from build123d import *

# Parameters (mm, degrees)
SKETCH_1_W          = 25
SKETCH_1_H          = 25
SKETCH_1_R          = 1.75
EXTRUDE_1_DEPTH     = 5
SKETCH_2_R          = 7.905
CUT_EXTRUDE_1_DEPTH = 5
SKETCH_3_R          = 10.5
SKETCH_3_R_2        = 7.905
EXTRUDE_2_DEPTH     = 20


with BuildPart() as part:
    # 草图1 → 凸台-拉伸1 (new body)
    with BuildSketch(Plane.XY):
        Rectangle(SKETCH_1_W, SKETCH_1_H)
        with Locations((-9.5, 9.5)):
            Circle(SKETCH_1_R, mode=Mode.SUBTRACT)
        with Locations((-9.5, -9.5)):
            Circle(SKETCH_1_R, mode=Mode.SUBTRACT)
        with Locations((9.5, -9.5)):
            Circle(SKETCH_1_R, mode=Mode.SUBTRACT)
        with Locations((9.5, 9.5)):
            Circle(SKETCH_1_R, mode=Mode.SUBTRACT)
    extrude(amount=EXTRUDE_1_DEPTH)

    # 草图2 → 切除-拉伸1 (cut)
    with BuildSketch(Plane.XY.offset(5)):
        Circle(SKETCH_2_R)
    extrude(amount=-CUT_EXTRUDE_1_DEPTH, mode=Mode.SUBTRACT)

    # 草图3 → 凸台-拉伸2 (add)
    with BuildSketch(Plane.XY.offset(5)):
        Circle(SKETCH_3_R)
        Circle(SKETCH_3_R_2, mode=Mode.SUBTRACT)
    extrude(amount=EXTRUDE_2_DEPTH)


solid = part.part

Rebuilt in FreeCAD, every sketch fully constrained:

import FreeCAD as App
import Part
import Sketcher
Q = App.Units.Quantity


def add_polygon(sketch, points):
    """Adds a closed chain of lines whose ends are joined by coincident constraints."""
    first, n = sketch.GeometryCount, len(points)
    for a, b in zip(points, points[1:] + points[:1]):
        sketch.addGeometry(Part.LineSegment(App.Vector(*a, 0), App.Vector(*b, 0)), False)
    for i in range(n):
        sketch.addConstraint(Sketcher.Constraint("Coincident", first + i, 2, first + (i + 1) % n, 1))

doc = App.newDocument("Part")
body = doc.addObject("PartDesign::Body", "Body")

sketch1 = body.newObject("Sketcher::SketchObject", "Sketch")
sketch1.AttachmentSupport = (doc.getObject("XY_Plane"), [""])
sketch1.MapMode = "FlatFace"
add_polygon(sketch1, [(-12.5, 12.5), (-12.5, -12.5), (12.5, -12.5), (12.5, 12.5)])
sketch1.addGeometry(Part.Circle(App.Vector(-9.5, -9.5, 0), App.Vector(0, 0, 1), 1.8), False)
sketch1.addGeometry(Part.Circle(App.Vector(9.5, -9.5, 0), App.Vector(0, 0, 1), 1.8), False)
sketch1.addGeometry(Part.Circle(App.Vector(-9.5, 9.5, 0), App.Vector(0, 0, 1), 1.8), False)
sketch1.addGeometry(Part.Circle(App.Vector(9.5, 9.5, 0), App.Vector(0, 0, 1), 1.8), False)
sketch1.addConstraint(Sketcher.Constraint("Vertical", 0))
sketch1.addConstraint(Sketcher.Constraint("Horizontal", 1))
sketch1.addConstraint(Sketcher.Constraint("Vertical", 2))
sketch1.addConstraint(Sketcher.Constraint("Horizontal", 3))
sketch1.addConstraint(Sketcher.Constraint("Equal", 4, 5))
sketch1.addConstraint(Sketcher.Constraint("Equal", 5, 6))
sketch1.addConstraint(Sketcher.Constraint("Equal", 6, 7))
sketch1.addConstraint(Sketcher.Constraint("Symmetric", 5, 3, 6, 3, -1, 1))
sketch1.addConstraint(Sketcher.Constraint("Symmetric", 4, 3, 7, 3, -1, 1))
sketch1.addConstraint(Sketcher.Constraint("Symmetric", 0, 2, 2, 2, -1, 1))
sketch1.addConstraint(Sketcher.Constraint("Symmetric", 4, 3, 5, 3, -2))
sketch1.addConstraint(Sketcher.Constraint("Equal", 3, 0))
sketch1.addConstraint(Sketcher.Constraint("Diameter", 4, Q("3.5 mm")))
sketch1.addConstraint(Sketcher.Constraint("DistanceX", 1, 1, 1, 2, Q("25 mm")))
sketch1.addConstraint(Sketcher.Constraint("DistanceX", 4, 3, 5, 3, Q("19 mm")))
sketch1.addConstraint(Sketcher.Constraint("DistanceY", 4, 3, 6, 3, Q("19 mm")))
pad1 = body.newObject("PartDesign::Pad", "Pad")
pad1.Profile = sketch1
pad1.Length = 5

sketch2 = body.newObject("Sketcher::SketchObject", "Sketch001")
sketch2.AttachmentSupport = (doc.getObject("XY_Plane"), [""])
sketch2.MapMode = "FlatFace"
sketch2.AttachmentOffset = App.Placement(App.Vector(0, 0, 5), App.Rotation())
sketch2.addGeometry(Part.Circle(App.Vector(0, 0, 0), App.Vector(0, 0, 1), 8), False)
sketch2.addConstraint(Sketcher.Constraint("Coincident", 0, 3, -1, 1))
sketch2.addConstraint(Sketcher.Constraint("Diameter", 0, Q("15.81 mm")))
pocket1 = body.newObject("PartDesign::Pocket", "Pocket")
pocket1.Profile = sketch2
pocket1.Length = 5

sketch3 = body.newObject("Sketcher::SketchObject", "Sketch002")
sketch3.AttachmentSupport = (doc.getObject("XY_Plane"), [""])
sketch3.MapMode = "FlatFace"
sketch3.AttachmentOffset = App.Placement(App.Vector(0, 0, 5), App.Rotation())
sketch3.addGeometry(Part.Circle(App.Vector(0, 0, 0), App.Vector(0, 0, 1), 10), False)
sketch3.addGeometry(Part.Circle(App.Vector(0, 0, 0), App.Vector(0, 0, 1), 8), False)
sketch3.addConstraint(Sketcher.Constraint("Coincident", 0, 3, -1, 1))
sketch3.addConstraint(Sketcher.Constraint("Coincident", 1, 3, -1, 1))
sketch3.addConstraint(Sketcher.Constraint("Diameter", 0, Q("21 mm")))
sketch3.addConstraint(Sketcher.Constraint("Diameter", 1, Q("15.81 mm")))
pad2 = body.newObject("PartDesign::Pad", "Pad001")
pad2.Profile = sketch3
pad2.Length = 20

doc.recompute()
